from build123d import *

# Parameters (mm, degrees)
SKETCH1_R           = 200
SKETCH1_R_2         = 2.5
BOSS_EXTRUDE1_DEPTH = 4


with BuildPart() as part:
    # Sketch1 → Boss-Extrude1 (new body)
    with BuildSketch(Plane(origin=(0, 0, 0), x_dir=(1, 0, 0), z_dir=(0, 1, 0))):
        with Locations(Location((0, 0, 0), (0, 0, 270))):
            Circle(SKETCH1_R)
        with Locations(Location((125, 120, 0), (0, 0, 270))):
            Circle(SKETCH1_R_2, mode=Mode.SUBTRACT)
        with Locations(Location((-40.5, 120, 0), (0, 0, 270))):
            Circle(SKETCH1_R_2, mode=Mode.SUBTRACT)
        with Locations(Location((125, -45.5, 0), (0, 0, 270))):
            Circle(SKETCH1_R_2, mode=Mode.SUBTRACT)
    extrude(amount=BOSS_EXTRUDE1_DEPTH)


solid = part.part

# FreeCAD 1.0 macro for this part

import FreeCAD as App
import Part
import Sketcher

doc = App.newDocument("Part")
params = doc.addObject("Spreadsheet::Sheet", "Params")
for row, (alias, value) in enumerate([
    ("sketch1_diameter", "400 mm"),
    ("sketch1_diameter2", "5 mm"),
    ("pad1_length", "4 mm"),
], start=1):
    params.set(f"A{row}", alias)
    params.set(f"B{row}", "=" + value)
    params.setAlias(f"B{row}", alias)

body = doc.addObject("PartDesign::Body", "Body")

# Sketch on XZ plane
sketch1 = body.newObject("Sketcher::SketchObject", "Sketch")
sketch1.AttachmentSupport = (doc.getObject("XZ_Plane"), [""])
sketch1.MapMode = "FlatFace"
sketch1.addGeometry(Part.Circle(App.Vector(0, 0, 0), App.Vector(0, 0, 1), 200), False)
sketch1.addGeometry(Part.Circle(App.Vector(-40.5, -120, 0), App.Vector(0, 0, 1), 2.5), False)
sketch1.addGeometry(Part.Circle(App.Vector(125, -120, 0), App.Vector(0, 0, 1), 2.5), False)
sketch1.addGeometry(Part.Circle(App.Vector(125, 45.5, 0), App.Vector(0, 0, 1), 2.5), False)
sketch1.addConstraint(Sketcher.Constraint("Coincident", 0, 3, -1, 1))
sketch1.addConstraint(Sketcher.Constraint("Equal", 1, 2))
sketch1.addConstraint(Sketcher.Constraint("Equal", 2, 3))
sketch1.addConstraint(Sketcher.Constraint("Horizontal", 1, 3, 2, 3))
sketch1.addConstraint(Sketcher.Constraint("Vertical", 2, 3, 3, 3))
sketch1.addConstraint(Sketcher.Constraint("Diameter", 0, 400.0))
sketch1.addConstraint(Sketcher.Constraint("Diameter", 1, 5.0))
sketch1.addConstraint(Sketcher.Constraint("DistanceY", 1, 3, -1, 1, 120.0))
sketch1.addConstraint(Sketcher.Constraint("DistanceX", -1, 1, 2, 3, 125.0))
sketch1.addConstraint(Sketcher.Constraint("DistanceX", 1, 3, -1, 1, 40.5))
sketch1.addConstraint(Sketcher.Constraint("DistanceY", -1, 1, 3, 3, 45.5))
sketch1.setExpression("Constraints[5]", "Params.sketch1_diameter")
sketch1.setExpression("Constraints[6]", "Params.sketch1_diameter2")
pad1 = body.newObject("PartDesign::Pad", "Pad")
pad1.Profile = sketch1
pad1.setExpression("Length", "Params.pad1_length")
pad1.Reversed = True

doc.recompute()
